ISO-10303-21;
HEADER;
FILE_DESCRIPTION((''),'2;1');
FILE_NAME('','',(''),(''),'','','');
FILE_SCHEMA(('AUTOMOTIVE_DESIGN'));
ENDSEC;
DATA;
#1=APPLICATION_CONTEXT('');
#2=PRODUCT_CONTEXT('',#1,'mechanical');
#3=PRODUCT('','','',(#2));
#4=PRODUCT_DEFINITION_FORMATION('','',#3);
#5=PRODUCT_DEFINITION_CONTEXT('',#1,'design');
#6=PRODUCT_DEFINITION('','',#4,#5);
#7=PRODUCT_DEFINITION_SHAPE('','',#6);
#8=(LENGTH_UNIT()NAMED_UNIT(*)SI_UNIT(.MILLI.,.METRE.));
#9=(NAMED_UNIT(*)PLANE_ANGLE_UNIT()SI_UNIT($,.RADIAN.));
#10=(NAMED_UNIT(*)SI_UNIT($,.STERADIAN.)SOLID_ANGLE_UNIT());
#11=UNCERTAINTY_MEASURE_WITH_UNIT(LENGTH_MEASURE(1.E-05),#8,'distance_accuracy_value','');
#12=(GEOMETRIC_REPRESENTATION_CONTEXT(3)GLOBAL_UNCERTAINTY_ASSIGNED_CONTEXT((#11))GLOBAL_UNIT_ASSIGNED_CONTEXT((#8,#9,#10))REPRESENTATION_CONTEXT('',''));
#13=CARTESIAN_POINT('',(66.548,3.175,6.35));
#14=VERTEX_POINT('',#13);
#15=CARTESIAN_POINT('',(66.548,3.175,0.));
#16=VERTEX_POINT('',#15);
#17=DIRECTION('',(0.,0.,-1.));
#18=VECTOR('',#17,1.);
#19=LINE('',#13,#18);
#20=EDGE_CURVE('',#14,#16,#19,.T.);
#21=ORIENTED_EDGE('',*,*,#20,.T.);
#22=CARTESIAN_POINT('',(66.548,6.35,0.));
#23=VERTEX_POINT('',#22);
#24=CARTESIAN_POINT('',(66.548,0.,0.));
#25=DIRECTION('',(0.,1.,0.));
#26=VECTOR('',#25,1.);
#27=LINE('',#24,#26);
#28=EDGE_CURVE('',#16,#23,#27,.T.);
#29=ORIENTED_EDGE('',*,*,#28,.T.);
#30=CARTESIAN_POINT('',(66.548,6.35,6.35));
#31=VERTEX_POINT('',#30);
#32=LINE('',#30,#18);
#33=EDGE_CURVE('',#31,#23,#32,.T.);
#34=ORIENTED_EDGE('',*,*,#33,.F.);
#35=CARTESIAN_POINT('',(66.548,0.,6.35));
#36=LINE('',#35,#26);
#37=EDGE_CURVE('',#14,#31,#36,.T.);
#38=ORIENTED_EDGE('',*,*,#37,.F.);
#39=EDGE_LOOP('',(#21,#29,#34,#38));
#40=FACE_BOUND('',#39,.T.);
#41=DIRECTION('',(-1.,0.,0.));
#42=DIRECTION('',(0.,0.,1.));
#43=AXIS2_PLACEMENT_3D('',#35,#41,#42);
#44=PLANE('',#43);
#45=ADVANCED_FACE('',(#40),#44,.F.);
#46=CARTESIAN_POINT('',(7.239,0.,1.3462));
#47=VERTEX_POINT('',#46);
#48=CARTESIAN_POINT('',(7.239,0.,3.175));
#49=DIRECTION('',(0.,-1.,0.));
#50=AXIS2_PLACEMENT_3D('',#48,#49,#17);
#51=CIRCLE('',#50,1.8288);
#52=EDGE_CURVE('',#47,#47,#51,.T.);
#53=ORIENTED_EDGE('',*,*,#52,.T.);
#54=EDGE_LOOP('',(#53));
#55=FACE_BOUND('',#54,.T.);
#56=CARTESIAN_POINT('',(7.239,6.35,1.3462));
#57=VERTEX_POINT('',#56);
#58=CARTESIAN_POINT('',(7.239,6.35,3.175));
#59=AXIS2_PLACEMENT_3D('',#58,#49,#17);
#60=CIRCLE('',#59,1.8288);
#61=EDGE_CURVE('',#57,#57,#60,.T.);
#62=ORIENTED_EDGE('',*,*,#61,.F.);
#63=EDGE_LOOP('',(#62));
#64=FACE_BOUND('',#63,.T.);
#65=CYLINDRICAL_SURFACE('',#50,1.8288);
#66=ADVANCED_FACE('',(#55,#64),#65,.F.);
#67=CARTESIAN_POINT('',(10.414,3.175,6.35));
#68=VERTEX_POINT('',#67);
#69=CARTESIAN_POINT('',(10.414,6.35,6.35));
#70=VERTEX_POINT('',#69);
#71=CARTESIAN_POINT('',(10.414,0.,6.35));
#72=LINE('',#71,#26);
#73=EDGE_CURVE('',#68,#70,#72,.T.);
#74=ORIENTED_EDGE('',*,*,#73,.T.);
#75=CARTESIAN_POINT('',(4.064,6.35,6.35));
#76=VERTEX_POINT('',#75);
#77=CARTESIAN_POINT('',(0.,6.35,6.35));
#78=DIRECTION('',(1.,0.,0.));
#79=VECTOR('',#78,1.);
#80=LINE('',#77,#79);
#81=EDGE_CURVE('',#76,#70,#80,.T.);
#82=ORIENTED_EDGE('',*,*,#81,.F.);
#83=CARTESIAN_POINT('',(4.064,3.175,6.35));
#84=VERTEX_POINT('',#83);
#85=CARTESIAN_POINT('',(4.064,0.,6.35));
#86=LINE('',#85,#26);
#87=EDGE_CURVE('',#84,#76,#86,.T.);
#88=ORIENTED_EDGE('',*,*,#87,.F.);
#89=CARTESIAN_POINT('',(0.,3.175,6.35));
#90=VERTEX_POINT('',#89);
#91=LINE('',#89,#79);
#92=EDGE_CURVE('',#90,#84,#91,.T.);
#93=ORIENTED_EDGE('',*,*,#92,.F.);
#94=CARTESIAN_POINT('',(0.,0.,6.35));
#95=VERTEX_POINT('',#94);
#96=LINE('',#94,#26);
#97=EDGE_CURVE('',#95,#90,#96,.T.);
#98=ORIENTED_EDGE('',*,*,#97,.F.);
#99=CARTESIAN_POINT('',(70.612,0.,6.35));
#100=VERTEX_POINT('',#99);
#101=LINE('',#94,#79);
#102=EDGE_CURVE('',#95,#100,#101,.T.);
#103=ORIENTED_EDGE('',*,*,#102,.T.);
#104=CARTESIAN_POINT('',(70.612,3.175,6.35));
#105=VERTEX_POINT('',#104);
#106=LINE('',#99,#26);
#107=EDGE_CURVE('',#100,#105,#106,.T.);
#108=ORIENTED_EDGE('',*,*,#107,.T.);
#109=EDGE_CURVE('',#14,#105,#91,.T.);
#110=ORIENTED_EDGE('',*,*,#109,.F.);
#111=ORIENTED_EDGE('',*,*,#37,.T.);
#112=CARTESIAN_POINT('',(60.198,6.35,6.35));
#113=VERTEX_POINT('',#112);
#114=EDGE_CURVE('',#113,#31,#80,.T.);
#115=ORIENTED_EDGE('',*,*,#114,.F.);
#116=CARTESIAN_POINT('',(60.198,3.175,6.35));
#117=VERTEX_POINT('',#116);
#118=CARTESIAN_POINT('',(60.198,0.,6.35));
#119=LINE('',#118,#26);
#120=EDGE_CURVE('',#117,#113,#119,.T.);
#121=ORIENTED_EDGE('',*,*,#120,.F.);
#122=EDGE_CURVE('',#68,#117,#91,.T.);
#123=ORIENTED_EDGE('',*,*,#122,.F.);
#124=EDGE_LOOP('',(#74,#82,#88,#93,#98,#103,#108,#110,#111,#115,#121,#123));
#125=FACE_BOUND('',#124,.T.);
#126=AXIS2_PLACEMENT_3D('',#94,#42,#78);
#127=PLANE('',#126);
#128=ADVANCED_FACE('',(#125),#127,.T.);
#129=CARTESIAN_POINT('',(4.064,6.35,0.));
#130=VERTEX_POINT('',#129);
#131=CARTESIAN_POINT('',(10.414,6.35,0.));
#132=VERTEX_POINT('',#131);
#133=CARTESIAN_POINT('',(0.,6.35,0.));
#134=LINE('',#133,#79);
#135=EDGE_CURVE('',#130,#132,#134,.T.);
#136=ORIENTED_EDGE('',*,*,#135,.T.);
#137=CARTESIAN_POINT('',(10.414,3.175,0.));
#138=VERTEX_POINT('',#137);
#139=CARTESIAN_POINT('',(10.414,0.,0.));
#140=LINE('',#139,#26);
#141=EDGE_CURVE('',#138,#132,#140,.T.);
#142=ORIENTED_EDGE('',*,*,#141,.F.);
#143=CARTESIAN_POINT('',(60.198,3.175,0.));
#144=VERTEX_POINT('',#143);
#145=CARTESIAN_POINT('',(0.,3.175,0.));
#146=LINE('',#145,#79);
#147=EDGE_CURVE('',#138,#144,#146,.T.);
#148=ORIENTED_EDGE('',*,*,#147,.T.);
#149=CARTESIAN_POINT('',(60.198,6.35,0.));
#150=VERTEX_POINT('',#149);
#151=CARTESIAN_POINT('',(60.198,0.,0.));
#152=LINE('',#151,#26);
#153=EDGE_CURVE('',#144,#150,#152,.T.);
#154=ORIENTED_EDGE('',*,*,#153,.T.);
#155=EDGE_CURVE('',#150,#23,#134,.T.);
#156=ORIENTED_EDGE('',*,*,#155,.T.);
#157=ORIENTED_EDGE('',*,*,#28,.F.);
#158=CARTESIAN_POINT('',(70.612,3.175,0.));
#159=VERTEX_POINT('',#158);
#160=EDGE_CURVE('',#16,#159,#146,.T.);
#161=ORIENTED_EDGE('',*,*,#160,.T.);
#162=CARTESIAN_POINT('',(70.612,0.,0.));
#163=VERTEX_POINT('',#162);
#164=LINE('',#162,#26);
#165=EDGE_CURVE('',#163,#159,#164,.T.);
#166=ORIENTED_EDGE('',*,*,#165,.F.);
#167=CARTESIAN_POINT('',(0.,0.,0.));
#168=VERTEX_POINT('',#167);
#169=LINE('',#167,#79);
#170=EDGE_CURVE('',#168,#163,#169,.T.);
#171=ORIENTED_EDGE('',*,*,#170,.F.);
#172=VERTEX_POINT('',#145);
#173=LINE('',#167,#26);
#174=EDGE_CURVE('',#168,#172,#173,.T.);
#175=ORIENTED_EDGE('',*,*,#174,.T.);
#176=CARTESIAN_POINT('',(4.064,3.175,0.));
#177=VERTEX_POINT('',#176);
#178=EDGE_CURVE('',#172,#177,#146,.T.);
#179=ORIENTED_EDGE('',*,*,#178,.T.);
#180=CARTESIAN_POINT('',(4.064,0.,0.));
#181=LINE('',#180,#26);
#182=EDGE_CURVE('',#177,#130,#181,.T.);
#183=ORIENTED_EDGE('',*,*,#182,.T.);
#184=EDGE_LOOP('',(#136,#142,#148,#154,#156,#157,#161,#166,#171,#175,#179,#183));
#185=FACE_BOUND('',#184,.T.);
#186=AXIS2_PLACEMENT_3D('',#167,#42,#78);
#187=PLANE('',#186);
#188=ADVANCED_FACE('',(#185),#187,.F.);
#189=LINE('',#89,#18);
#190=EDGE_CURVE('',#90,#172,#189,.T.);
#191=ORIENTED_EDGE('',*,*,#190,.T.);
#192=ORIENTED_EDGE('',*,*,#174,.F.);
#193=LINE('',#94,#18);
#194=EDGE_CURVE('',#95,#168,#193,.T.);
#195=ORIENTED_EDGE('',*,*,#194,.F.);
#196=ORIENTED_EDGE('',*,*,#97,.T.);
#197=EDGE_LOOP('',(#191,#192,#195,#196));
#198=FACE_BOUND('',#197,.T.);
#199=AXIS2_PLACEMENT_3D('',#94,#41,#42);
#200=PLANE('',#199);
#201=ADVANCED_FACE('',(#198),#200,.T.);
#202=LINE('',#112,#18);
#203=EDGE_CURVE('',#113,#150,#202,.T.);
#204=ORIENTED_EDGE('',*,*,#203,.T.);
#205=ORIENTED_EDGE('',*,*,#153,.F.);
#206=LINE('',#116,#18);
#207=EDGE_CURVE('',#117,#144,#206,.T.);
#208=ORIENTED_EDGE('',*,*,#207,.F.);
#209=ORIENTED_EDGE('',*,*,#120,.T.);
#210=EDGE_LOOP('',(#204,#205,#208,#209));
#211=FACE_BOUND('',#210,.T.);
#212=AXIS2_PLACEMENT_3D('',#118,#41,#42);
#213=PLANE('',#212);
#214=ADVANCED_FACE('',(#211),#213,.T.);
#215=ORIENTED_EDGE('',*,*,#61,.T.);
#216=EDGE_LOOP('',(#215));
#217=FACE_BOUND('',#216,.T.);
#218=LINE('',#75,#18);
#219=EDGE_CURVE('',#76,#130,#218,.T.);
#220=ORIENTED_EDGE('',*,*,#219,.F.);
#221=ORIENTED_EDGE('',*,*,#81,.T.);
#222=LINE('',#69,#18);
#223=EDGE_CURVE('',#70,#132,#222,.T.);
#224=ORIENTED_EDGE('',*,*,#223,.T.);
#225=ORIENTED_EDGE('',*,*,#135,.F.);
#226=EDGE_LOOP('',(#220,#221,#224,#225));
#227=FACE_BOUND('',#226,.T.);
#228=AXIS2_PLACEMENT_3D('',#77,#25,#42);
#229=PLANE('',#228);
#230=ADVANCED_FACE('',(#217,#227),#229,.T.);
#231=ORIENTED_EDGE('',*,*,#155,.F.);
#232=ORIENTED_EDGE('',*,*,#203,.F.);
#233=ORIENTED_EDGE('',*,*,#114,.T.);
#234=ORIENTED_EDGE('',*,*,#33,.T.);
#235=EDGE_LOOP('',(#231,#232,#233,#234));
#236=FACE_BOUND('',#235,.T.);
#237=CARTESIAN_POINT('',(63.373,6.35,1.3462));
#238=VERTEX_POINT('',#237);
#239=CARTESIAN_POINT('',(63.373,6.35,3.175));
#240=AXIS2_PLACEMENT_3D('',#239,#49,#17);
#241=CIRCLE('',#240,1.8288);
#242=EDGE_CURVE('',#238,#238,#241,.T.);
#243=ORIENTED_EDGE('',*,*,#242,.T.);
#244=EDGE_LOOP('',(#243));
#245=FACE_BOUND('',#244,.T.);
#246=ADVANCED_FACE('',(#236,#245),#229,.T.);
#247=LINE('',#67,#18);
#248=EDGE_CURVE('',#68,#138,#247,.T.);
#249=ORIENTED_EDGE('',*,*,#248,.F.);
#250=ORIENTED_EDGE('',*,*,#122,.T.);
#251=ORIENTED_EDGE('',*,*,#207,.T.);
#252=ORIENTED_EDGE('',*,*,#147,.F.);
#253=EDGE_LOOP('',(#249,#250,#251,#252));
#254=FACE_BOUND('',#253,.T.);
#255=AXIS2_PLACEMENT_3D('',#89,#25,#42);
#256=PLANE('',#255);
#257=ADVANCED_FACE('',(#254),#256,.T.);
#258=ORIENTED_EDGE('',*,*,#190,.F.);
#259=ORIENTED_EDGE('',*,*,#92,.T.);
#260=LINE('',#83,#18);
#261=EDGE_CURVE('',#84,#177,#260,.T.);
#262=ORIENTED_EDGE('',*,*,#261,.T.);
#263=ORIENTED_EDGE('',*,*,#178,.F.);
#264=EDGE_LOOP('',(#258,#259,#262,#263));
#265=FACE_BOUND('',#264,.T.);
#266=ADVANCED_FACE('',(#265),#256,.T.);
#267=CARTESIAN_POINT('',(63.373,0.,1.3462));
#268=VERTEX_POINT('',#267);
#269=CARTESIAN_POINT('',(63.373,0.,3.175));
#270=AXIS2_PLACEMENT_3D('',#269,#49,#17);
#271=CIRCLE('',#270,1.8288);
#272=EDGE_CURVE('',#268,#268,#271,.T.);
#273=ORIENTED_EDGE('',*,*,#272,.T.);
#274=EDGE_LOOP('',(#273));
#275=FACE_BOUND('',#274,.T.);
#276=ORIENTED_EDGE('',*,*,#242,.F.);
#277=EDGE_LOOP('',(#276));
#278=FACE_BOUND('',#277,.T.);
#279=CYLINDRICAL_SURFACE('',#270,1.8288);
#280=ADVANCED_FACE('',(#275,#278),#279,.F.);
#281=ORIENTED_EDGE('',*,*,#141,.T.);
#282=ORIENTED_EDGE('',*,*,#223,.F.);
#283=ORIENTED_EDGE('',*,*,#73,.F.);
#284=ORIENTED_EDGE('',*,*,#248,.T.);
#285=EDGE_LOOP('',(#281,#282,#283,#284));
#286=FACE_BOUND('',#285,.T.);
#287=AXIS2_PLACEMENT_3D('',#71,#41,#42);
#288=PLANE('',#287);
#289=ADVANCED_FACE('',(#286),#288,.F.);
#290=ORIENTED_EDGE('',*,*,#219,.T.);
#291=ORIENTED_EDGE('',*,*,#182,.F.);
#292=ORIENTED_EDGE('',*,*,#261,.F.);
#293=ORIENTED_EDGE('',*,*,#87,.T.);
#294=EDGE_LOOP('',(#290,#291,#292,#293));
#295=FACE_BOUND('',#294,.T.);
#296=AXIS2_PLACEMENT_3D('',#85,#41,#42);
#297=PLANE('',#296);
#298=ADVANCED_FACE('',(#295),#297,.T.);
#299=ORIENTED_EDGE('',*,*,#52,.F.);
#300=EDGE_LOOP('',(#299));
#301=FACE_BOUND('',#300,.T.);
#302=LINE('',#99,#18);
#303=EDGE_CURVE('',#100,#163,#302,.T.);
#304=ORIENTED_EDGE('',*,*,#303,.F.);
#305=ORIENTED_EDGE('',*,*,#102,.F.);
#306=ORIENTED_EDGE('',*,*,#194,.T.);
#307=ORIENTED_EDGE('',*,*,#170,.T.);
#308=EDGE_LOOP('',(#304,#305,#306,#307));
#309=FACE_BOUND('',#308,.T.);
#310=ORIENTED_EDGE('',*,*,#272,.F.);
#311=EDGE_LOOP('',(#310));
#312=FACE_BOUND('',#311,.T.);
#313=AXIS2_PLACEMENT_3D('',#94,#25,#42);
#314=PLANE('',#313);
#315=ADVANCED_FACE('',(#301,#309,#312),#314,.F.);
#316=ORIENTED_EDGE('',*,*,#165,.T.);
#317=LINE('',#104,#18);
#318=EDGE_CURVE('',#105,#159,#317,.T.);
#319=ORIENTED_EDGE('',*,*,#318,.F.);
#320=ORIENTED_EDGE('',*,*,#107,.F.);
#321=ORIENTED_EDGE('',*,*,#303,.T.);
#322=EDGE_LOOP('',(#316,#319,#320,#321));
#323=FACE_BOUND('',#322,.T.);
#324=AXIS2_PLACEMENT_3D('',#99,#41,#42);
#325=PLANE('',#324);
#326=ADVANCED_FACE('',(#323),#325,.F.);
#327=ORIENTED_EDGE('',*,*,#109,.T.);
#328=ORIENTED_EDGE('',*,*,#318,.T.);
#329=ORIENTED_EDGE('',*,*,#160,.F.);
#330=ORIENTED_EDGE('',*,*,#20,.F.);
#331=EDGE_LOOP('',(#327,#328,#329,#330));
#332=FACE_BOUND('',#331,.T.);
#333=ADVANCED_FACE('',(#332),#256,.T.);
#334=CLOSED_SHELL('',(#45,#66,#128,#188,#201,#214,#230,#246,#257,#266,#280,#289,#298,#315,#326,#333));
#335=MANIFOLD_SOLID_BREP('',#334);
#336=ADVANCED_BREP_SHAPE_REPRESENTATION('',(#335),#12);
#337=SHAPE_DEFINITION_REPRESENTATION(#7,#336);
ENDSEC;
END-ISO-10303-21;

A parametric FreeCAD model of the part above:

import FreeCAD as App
import Part
import Sketcher

V = App.Vector
Q = App.Units.Quantity


def add_polygon(sketch, points):
    """Adds a closed chain of lines whose ends are joined by coincident constraints."""
    first, n = sketch.GeometryCount, len(points)
    for a, b in zip(points, points[1:] + points[:1]):
        sketch.addGeometry(Part.LineSegment(App.Vector(*a, 0), App.Vector(*b, 0)), False)
    for i in range(n):
        sketch.addConstraint(Sketcher.Constraint("Coincident", first + i, 2, first + (i + 1) % n, 1))

doc = App.newDocument("Part")
body = doc.addObject("PartDesign::Body", "Body")

# Sketch on XY plane
sketch1 = body.newObject("Sketcher::SketchObject", "Sketch")
sketch1.AttachmentSupport = (doc.getObject("XY_Plane"), [""])
sketch1.MapMode = "FlatFace"
add_polygon(sketch1, [(0, 0), (70.6, 0), (70.6, 3.2), (66.5, 3.2), (66.5, 6.3), (60.2, 6.3), (60.2, 3.2), (10.4, 3.2), (10.4, 6.3), (4.1, 6.3), (4.1, 3.2), (0, 3.2)])  # lines 0-11
sketch1.addConstraint(Sketcher.Constraint("Horizontal", 0))
sketch1.addConstraint(Sketcher.Constraint("Vertical", 1))
sketch1.addConstraint(Sketcher.Constraint("Horizontal", 2))
sketch1.addConstraint(Sketcher.Constraint("Vertical", 3))
sketch1.addConstraint(Sketcher.Constraint("Horizontal", 4))
sketch1.addConstraint(Sketcher.Constraint("Vertical", 5))
sketch1.addConstraint(Sketcher.Constraint("Horizontal", 6))
sketch1.addConstraint(Sketcher.Constraint("Vertical", 7))
sketch1.addConstraint(Sketcher.Constraint("Horizontal", 8))
sketch1.addConstraint(Sketcher.Constraint("Vertical", 9))
sketch1.addConstraint(Sketcher.Constraint("Horizontal", 10))
sketch1.addConstraint(Sketcher.Constraint("Vertical", 11))
sketch1.addConstraint(Sketcher.Constraint("Coincident", 11, 2, -1, 1))
sketch1.addConstraint(Sketcher.Constraint("Horizontal", 2, 2, 5, 2))
sketch1.addConstraint(Sketcher.Constraint("Horizontal", 4, 2, 7, 2))
sketch1.addConstraint(Sketcher.Constraint("Horizontal", 6, 2, 9, 2))
sketch1.addConstraint(Sketcher.Constraint("Equal", 4, 8))
sketch1.addConstraint(Sketcher.Constraint("Equal", 2, 10))
sketch1.addConstraint(Sketcher.Constraint("Equal", 1, 3))
sketch1.addConstraint(Sketcher.Constraint("DistanceX", 0, 1, 0, 2, Q("2.78 in")))
sketch1.addConstraint(Sketcher.Constraint("DistanceX", 2, 2, 2, 1, Q("0.16 in")))
sketch1.addConstraint(Sketcher.Constraint("DistanceX", 4, 2, 4, 1, Q("0.25 in")))
sketch1.addConstraint(Sketcher.Constraint("DistanceY", 1, 1, 1, 2, Q("0.125 in")))
pad1 = body.newObject("PartDesign::Pad", "Pad")
pad1.Profile = sketch1
pad1.Length = Q("0.25 in")

# Sketch on XZ plane
sketch2 = body.newObject("Sketcher::SketchObject", "Sketch001")
sketch2.AttachmentSupport = (doc.getObject("XZ_Plane"), [""])
sketch2.MapMode = "FlatFace"
sketch2.addGeometry(Part.Circle(V(7.2, 3.2, 0), V(0, 0, 1), 1.8), False)
sketch2.addGeometry(Part.Circle(V(63.4, 3.2, 0), V(0, 0, 1), 1.8), False)
sketch2.addConstraint(Sketcher.Constraint("Equal", 0, 1))
sketch2.addConstraint(Sketcher.Constraint("Horizontal", 0, 3, 1, 3))
sketch2.addConstraint(Sketcher.Constraint("Diameter", 0, Q("0.144 in")))
sketch2.addConstraint(Sketcher.Constraint("DistanceX", 0, 3, 1, 3, Q("2.21 in")))
sketch2.addConstraint(Sketcher.Constraint("DistanceX", -1, 1, 0, 3, Q("0.285 in")))
sketch2.addConstraint(Sketcher.Constraint("DistanceY", -1, 1, 0, 3, Q("0.125 in")))
doc.recompute()
hole = body.newObject("PartDesign::Hole", "Hole")
hole.Profile = sketch2
hole.ThreadType = "None"
hole.Diameter = Q("0.144 in")
hole.DepthType = "ThroughAll"

doc.recompute()
